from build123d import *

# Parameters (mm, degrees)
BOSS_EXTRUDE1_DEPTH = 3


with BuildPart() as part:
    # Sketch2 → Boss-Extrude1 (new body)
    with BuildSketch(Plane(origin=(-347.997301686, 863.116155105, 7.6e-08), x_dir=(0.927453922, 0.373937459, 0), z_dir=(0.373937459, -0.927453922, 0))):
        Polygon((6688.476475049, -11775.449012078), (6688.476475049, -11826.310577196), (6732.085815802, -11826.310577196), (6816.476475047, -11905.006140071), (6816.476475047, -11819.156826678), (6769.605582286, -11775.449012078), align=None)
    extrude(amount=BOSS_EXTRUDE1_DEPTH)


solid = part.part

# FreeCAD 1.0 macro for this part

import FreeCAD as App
import Part
import Sketcher
Q = App.Units.Quantity

doc = App.newDocument("Part")
params = doc.addObject("Spreadsheet::Sheet", "Params")
for row, (alias, value) in enumerate([
    ("pad1_length", "3 mm"),
], start=1):
    params.set(f"A{row}", alias)
    params.set(f"B{row}", "=" + value)
    params.setAlias(f"B{row}", alias)

body = doc.addObject("PartDesign::Body", "Body")

sketch1 = body.newObject("Sketcher::SketchObject", "Sketch")
sketch1.Placement = App.Placement(App.Vector(-347.997302, 863.116155, 0), App.Rotation(App.Vector(0.927453922, 0.373937459, 0), App.Vector(0, 0, 1.000000001), App.Vector(0.373937459, -0.927453922, 0), "ZXY"))
sketch1.addGeometry(Part.LineSegment(App.Vector(6688, -11775, 0), App.Vector(6688, -11826, 0)), False)
sketch1.addGeometry(Part.LineSegment(App.Vector(6688, -11826, 0), App.Vector(6732, -11826, 0)), False)
sketch1.addGeometry(Part.LineSegment(App.Vector(6732, -11826, 0), App.Vector(6816, -11905, 0)), False)
sketch1.addGeometry(Part.LineSegment(App.Vector(6816, -11905, 0), App.Vector(6816, -11819, 0)), False)
sketch1.addGeometry(Part.LineSegment(App.Vector(6816, -11819, 0), App.Vector(6770, -11775, 0)), False)
sketch1.addGeometry(Part.LineSegment(App.Vector(6770, -11775, 0), App.Vector(6688, -11775, 0)), False)
sketch1.addConstraint(Sketcher.Constraint("Coincident", 0, 2, 1, 1))
sketch1.addConstraint(Sketcher.Constraint("Coincident", 1, 2, 2, 1))
sketch1.addConstraint(Sketcher.Constraint("Coincident", 2, 2, 3, 1))
sketch1.addConstraint(Sketcher.Constraint("Coincident", 3, 2, 4, 1))
sketch1.addConstraint(Sketcher.Constraint("Coincident", 4, 2, 5, 1))
sketch1.addConstraint(Sketcher.Constraint("Coincident", 5, 2, 0, 1))
sketch1.addConstraint(Sketcher.Constraint("Vertical", 0))
sketch1.addConstraint(Sketcher.Constraint("Horizontal", 1))
sketch1.addConstraint(Sketcher.Constraint("Vertical", 3))
sketch1.addConstraint(Sketcher.Constraint("Horizontal", 5))
sketch1.addConstraint(Sketcher.Constraint("Parallel", 2, 4))
sketch1.addConstraint(Sketcher.Constraint("Angle", 2, Q("-43 deg")))
sketch1.addConstraint(Sketcher.Constraint("DistanceX", 0, 2, 2, 2, 128.0))
sketch1.addConstraint(Sketcher.Constraint("DistanceX", 1, 1, 1, 2, 43.609341))
sketch1.addConstraint(Sketcher.Constraint("Distance", 4, 64.087859))
sketch1.addConstraint(Sketcher.Constraint("DistanceY", 0, 2, 0, 1, 50.861565))
sketch1.addConstraint(Sketcher.Constraint("DistanceX", -1, 1, 0, 2, 6688.47648))
sketch1.addConstraint(Sketcher.Constraint("DistanceY", 4, 2, -1, 1, 11775.449028))
pad1 = body.newObject("PartDesign::Pad", "Pad")
pad1.Profile = sketch1
pad1.setExpression("Length", "Params.pad1_length")

doc.recompute()
